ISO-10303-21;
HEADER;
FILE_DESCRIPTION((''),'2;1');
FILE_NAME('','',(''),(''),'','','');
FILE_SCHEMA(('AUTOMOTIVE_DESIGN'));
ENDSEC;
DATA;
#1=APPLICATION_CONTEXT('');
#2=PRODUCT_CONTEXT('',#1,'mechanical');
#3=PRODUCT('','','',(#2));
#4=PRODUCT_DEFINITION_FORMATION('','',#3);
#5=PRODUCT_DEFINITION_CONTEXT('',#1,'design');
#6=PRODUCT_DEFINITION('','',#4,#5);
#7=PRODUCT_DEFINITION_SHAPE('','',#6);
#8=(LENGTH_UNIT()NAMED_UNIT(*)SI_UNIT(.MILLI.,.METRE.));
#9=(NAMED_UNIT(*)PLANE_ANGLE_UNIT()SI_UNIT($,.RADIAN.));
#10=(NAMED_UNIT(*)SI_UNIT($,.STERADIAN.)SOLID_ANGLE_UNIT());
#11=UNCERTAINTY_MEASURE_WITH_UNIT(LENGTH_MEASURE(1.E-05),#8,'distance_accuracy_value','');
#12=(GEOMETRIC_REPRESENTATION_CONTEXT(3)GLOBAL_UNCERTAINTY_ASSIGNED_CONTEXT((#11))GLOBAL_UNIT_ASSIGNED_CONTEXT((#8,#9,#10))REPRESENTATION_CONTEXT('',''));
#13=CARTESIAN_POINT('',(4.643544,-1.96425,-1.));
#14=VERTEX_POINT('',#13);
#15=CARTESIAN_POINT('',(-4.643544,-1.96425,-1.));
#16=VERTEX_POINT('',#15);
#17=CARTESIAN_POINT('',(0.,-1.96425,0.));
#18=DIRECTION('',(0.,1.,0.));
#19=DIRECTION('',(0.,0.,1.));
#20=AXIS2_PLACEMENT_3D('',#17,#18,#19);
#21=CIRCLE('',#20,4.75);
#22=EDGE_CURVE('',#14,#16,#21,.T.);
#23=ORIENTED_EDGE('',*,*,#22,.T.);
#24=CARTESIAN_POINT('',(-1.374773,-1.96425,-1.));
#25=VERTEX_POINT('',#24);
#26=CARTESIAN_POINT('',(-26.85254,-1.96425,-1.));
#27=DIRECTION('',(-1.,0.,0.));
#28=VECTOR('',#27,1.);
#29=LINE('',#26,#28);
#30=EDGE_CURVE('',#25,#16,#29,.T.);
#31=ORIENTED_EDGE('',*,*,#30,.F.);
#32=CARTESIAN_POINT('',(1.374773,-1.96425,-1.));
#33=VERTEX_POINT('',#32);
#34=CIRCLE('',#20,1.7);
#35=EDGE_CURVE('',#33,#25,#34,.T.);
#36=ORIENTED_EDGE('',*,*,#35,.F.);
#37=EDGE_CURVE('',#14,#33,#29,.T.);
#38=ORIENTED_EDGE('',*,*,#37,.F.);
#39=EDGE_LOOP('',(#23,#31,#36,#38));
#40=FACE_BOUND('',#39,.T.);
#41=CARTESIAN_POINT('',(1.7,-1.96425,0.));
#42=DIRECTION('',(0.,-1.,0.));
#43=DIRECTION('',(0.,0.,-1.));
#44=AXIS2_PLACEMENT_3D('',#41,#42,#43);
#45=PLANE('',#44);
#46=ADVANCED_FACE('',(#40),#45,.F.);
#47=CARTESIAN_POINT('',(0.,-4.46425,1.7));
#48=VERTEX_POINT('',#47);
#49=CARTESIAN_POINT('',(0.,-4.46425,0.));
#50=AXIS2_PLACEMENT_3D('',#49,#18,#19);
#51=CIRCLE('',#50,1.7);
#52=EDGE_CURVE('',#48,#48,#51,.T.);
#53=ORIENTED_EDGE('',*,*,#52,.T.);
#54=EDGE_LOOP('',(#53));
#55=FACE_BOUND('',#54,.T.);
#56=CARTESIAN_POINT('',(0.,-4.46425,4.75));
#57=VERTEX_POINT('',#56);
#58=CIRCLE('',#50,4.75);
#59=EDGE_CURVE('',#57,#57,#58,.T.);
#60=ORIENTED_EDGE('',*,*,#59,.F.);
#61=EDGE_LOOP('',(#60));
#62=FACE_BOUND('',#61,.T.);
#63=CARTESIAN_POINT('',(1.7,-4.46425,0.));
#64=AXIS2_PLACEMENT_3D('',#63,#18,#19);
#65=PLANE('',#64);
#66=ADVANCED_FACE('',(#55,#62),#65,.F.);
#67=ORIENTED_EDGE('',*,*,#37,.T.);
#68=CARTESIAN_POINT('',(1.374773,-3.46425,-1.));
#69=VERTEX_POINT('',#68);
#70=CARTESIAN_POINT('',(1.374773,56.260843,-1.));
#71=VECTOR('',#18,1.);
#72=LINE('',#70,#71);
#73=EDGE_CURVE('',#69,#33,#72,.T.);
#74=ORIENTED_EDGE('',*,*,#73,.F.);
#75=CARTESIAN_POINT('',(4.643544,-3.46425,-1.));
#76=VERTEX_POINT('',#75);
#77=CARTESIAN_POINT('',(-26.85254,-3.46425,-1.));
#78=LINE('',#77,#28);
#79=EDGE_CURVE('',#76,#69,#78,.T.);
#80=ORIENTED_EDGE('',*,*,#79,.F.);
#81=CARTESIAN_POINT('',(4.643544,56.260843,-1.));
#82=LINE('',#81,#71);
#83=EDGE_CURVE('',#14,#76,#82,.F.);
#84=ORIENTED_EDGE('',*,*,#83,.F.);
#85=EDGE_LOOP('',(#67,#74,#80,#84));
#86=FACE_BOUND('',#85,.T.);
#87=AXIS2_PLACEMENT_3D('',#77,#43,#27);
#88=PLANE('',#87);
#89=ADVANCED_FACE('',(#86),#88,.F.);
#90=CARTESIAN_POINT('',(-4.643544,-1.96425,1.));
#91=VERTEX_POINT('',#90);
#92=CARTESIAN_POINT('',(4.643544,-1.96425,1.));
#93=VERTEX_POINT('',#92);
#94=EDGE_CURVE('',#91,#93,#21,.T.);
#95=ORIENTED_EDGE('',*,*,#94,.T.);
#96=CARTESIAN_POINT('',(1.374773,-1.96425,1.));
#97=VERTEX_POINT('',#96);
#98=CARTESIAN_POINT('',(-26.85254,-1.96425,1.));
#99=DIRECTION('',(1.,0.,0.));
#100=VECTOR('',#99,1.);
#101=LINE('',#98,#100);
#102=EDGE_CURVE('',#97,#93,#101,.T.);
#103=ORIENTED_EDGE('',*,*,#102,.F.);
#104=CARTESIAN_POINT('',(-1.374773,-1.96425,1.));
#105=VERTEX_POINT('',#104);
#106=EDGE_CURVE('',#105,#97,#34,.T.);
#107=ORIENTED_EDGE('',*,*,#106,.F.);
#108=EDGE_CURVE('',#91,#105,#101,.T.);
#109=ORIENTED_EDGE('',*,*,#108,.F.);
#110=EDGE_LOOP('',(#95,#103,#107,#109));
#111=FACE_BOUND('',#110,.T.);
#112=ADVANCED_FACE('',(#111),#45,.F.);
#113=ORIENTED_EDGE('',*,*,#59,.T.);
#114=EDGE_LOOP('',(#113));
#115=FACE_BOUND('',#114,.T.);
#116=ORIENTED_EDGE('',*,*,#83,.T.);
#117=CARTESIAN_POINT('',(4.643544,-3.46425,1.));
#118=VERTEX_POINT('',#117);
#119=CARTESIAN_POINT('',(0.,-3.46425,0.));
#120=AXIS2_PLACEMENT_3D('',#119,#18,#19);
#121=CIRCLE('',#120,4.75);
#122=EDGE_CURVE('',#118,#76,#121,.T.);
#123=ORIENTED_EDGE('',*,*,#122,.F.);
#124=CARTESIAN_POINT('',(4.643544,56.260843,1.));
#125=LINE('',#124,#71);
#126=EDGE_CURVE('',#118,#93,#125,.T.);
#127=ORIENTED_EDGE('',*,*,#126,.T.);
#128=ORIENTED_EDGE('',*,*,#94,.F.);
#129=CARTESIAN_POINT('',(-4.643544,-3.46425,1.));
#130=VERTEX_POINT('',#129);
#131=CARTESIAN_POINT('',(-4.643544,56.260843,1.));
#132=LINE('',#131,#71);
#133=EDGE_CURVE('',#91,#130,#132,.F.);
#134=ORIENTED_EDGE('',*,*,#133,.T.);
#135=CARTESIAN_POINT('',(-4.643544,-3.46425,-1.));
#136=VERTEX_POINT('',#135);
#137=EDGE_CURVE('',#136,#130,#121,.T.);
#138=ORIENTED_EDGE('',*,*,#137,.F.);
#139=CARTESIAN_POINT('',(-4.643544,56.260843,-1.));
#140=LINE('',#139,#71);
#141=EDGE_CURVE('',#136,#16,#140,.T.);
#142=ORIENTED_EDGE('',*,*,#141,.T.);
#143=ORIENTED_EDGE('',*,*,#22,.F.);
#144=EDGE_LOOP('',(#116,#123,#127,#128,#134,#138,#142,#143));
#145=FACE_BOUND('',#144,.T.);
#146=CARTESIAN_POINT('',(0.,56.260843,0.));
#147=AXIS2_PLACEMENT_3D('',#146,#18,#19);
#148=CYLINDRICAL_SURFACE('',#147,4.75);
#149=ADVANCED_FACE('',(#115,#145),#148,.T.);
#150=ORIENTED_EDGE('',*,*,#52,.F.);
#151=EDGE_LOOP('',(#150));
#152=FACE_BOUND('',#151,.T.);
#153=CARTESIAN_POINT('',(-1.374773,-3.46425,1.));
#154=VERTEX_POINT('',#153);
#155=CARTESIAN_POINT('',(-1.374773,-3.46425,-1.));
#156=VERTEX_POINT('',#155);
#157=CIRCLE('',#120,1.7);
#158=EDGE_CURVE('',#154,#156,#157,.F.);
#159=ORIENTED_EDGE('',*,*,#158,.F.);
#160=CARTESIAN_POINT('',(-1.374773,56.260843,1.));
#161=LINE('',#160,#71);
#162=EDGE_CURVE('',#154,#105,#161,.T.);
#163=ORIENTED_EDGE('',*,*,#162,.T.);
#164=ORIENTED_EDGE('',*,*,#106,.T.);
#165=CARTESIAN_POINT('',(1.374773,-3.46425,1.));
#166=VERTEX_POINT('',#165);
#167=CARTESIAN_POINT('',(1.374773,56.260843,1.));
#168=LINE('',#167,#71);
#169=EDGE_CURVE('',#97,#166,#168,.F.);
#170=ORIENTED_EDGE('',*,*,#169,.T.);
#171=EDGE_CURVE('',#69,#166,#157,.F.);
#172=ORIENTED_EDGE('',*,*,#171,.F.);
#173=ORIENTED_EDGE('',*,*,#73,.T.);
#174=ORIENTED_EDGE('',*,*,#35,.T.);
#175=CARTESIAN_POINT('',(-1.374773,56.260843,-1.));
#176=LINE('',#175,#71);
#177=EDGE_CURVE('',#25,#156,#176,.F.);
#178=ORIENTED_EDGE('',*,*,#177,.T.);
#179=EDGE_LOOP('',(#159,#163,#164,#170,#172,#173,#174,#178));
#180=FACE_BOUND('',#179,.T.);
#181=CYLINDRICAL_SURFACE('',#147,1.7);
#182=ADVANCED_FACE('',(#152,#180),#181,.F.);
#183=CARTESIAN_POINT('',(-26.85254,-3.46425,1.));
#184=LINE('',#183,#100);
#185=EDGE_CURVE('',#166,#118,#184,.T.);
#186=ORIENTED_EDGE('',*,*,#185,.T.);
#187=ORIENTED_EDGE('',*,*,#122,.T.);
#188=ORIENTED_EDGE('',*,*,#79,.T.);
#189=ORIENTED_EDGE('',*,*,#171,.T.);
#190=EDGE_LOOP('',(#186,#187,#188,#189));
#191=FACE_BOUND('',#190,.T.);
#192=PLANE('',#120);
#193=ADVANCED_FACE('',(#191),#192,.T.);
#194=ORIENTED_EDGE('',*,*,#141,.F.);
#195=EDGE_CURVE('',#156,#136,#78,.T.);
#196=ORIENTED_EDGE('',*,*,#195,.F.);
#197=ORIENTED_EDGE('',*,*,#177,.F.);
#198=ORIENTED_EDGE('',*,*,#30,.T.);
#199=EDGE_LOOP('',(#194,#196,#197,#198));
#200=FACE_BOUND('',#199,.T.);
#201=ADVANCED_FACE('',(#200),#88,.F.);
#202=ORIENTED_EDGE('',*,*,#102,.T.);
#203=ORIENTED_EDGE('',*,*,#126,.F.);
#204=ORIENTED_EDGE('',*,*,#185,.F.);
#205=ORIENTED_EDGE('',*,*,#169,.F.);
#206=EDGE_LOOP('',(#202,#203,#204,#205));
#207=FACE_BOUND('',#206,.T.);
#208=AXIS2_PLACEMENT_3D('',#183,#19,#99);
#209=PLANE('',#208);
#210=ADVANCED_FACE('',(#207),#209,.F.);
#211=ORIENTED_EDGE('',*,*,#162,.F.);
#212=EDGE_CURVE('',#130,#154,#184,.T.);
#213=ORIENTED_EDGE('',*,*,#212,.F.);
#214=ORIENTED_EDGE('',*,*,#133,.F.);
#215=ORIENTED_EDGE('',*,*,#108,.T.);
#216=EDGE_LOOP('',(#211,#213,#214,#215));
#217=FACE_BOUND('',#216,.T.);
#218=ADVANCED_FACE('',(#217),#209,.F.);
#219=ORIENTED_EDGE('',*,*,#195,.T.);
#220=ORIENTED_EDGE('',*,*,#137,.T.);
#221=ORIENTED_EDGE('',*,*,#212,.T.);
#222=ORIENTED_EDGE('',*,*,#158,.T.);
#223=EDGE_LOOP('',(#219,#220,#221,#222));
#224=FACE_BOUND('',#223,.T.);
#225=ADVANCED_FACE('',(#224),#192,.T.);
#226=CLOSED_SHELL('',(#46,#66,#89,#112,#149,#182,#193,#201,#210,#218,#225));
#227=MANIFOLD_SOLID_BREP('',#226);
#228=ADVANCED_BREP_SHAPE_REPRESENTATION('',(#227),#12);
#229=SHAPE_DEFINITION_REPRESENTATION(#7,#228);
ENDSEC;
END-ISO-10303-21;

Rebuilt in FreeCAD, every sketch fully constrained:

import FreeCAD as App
import Part
import Sketcher

V = App.Vector


def add_polygon(sketch, points):
    """Adds a closed chain of lines whose ends are joined by coincident constraints."""
    first, n = sketch.GeometryCount, len(points)
    for a, b in zip(points, points[1:] + points[:1]):
        sketch.addGeometry(Part.LineSegment(App.Vector(*a, 0), App.Vector(*b, 0)), False)
    for i in range(n):
        sketch.addConstraint(Sketcher.Constraint("Coincident", first + i, 2, first + (i + 1) % n, 1))

doc = App.newDocument("Part")
body = doc.addObject("PartDesign::Body", "Body")

sketch1 = doc.addObject("Sketcher::SketchObject", "Sketch")
body.addObject(sketch1)
sketch1.AttachmentSupport = (doc.XY_Plane, [""])
sketch1.MapMode = "FlatFace"
add_polygon(sketch1, [(1.7, -2), (1.7, -4.5), (4.8, -4.5), (4.8, -2)])
sketch1.addConstraint(Sketcher.Constraint("Vertical", 0))
sketch1.addConstraint(Sketcher.Constraint("Horizontal", 1))
sketch1.addConstraint(Sketcher.Constraint("Vertical", 2))
sketch1.addConstraint(Sketcher.Constraint("Horizontal", 3))
sketch1.addConstraint(Sketcher.Constraint("DistanceY", 0, 2, 0, 1, 2.5))
sketch1.addConstraint(Sketcher.Constraint("DistanceX", 1, 1, 1, 2, 3.05))
sketch1.addConstraint(Sketcher.Constraint("DistanceX", -1, 1, 0, 2, 1.7))
sketch1.addConstraint(Sketcher.Constraint("DistanceY", 0, 2, -1, 1, 4.46425))
revolution = doc.addObject("PartDesign::Revolution", "Revolution")
body.addObject(revolution)
revolution.Profile = sketch1
revolution.ReferenceAxis = (sketch1, ["V_Axis"])
revolution.Angle = 360

sketch2 = doc.addObject("Sketcher::SketchObject", "Sketch001")
body.addObject(sketch2)
sketch2.AttachmentSupport = (doc.XZ_Plane, [""])
sketch2.MapMode = "FlatFace"
sketch2.AttachmentOffset = App.Placement(V(0, 0, 1.96425), App.Rotation())
add_polygon(sketch2, [(-26.9, -1), (-26.9, 1), (26.9, 1), (26.9, -1)])
sketch2.addConstraint(Sketcher.Constraint("Vertical", 0))
sketch2.addConstraint(Sketcher.Constraint("Horizontal", 1))
sketch2.addConstraint(Sketcher.Constraint("Vertical", 2))
sketch2.addConstraint(Sketcher.Constraint("Horizontal", 3))
sketch2.addConstraint(Sketcher.Constraint("Symmetric", 0, 2, 2, 2, -1, 1))
sketch2.addConstraint(Sketcher.Constraint("DistanceY", 0, 1, 0, 2, 2.0))
sketch2.addConstraint(Sketcher.Constraint("DistanceX", 1, 1, 1, 2, 53.705081))
pocket1 = doc.addObject("PartDesign::Pocket", "Pocket")
body.addObject(pocket1)
pocket1.Profile = sketch2
pocket1.Length = 1.5
pocket1.Reversed = True

doc.recompute()
